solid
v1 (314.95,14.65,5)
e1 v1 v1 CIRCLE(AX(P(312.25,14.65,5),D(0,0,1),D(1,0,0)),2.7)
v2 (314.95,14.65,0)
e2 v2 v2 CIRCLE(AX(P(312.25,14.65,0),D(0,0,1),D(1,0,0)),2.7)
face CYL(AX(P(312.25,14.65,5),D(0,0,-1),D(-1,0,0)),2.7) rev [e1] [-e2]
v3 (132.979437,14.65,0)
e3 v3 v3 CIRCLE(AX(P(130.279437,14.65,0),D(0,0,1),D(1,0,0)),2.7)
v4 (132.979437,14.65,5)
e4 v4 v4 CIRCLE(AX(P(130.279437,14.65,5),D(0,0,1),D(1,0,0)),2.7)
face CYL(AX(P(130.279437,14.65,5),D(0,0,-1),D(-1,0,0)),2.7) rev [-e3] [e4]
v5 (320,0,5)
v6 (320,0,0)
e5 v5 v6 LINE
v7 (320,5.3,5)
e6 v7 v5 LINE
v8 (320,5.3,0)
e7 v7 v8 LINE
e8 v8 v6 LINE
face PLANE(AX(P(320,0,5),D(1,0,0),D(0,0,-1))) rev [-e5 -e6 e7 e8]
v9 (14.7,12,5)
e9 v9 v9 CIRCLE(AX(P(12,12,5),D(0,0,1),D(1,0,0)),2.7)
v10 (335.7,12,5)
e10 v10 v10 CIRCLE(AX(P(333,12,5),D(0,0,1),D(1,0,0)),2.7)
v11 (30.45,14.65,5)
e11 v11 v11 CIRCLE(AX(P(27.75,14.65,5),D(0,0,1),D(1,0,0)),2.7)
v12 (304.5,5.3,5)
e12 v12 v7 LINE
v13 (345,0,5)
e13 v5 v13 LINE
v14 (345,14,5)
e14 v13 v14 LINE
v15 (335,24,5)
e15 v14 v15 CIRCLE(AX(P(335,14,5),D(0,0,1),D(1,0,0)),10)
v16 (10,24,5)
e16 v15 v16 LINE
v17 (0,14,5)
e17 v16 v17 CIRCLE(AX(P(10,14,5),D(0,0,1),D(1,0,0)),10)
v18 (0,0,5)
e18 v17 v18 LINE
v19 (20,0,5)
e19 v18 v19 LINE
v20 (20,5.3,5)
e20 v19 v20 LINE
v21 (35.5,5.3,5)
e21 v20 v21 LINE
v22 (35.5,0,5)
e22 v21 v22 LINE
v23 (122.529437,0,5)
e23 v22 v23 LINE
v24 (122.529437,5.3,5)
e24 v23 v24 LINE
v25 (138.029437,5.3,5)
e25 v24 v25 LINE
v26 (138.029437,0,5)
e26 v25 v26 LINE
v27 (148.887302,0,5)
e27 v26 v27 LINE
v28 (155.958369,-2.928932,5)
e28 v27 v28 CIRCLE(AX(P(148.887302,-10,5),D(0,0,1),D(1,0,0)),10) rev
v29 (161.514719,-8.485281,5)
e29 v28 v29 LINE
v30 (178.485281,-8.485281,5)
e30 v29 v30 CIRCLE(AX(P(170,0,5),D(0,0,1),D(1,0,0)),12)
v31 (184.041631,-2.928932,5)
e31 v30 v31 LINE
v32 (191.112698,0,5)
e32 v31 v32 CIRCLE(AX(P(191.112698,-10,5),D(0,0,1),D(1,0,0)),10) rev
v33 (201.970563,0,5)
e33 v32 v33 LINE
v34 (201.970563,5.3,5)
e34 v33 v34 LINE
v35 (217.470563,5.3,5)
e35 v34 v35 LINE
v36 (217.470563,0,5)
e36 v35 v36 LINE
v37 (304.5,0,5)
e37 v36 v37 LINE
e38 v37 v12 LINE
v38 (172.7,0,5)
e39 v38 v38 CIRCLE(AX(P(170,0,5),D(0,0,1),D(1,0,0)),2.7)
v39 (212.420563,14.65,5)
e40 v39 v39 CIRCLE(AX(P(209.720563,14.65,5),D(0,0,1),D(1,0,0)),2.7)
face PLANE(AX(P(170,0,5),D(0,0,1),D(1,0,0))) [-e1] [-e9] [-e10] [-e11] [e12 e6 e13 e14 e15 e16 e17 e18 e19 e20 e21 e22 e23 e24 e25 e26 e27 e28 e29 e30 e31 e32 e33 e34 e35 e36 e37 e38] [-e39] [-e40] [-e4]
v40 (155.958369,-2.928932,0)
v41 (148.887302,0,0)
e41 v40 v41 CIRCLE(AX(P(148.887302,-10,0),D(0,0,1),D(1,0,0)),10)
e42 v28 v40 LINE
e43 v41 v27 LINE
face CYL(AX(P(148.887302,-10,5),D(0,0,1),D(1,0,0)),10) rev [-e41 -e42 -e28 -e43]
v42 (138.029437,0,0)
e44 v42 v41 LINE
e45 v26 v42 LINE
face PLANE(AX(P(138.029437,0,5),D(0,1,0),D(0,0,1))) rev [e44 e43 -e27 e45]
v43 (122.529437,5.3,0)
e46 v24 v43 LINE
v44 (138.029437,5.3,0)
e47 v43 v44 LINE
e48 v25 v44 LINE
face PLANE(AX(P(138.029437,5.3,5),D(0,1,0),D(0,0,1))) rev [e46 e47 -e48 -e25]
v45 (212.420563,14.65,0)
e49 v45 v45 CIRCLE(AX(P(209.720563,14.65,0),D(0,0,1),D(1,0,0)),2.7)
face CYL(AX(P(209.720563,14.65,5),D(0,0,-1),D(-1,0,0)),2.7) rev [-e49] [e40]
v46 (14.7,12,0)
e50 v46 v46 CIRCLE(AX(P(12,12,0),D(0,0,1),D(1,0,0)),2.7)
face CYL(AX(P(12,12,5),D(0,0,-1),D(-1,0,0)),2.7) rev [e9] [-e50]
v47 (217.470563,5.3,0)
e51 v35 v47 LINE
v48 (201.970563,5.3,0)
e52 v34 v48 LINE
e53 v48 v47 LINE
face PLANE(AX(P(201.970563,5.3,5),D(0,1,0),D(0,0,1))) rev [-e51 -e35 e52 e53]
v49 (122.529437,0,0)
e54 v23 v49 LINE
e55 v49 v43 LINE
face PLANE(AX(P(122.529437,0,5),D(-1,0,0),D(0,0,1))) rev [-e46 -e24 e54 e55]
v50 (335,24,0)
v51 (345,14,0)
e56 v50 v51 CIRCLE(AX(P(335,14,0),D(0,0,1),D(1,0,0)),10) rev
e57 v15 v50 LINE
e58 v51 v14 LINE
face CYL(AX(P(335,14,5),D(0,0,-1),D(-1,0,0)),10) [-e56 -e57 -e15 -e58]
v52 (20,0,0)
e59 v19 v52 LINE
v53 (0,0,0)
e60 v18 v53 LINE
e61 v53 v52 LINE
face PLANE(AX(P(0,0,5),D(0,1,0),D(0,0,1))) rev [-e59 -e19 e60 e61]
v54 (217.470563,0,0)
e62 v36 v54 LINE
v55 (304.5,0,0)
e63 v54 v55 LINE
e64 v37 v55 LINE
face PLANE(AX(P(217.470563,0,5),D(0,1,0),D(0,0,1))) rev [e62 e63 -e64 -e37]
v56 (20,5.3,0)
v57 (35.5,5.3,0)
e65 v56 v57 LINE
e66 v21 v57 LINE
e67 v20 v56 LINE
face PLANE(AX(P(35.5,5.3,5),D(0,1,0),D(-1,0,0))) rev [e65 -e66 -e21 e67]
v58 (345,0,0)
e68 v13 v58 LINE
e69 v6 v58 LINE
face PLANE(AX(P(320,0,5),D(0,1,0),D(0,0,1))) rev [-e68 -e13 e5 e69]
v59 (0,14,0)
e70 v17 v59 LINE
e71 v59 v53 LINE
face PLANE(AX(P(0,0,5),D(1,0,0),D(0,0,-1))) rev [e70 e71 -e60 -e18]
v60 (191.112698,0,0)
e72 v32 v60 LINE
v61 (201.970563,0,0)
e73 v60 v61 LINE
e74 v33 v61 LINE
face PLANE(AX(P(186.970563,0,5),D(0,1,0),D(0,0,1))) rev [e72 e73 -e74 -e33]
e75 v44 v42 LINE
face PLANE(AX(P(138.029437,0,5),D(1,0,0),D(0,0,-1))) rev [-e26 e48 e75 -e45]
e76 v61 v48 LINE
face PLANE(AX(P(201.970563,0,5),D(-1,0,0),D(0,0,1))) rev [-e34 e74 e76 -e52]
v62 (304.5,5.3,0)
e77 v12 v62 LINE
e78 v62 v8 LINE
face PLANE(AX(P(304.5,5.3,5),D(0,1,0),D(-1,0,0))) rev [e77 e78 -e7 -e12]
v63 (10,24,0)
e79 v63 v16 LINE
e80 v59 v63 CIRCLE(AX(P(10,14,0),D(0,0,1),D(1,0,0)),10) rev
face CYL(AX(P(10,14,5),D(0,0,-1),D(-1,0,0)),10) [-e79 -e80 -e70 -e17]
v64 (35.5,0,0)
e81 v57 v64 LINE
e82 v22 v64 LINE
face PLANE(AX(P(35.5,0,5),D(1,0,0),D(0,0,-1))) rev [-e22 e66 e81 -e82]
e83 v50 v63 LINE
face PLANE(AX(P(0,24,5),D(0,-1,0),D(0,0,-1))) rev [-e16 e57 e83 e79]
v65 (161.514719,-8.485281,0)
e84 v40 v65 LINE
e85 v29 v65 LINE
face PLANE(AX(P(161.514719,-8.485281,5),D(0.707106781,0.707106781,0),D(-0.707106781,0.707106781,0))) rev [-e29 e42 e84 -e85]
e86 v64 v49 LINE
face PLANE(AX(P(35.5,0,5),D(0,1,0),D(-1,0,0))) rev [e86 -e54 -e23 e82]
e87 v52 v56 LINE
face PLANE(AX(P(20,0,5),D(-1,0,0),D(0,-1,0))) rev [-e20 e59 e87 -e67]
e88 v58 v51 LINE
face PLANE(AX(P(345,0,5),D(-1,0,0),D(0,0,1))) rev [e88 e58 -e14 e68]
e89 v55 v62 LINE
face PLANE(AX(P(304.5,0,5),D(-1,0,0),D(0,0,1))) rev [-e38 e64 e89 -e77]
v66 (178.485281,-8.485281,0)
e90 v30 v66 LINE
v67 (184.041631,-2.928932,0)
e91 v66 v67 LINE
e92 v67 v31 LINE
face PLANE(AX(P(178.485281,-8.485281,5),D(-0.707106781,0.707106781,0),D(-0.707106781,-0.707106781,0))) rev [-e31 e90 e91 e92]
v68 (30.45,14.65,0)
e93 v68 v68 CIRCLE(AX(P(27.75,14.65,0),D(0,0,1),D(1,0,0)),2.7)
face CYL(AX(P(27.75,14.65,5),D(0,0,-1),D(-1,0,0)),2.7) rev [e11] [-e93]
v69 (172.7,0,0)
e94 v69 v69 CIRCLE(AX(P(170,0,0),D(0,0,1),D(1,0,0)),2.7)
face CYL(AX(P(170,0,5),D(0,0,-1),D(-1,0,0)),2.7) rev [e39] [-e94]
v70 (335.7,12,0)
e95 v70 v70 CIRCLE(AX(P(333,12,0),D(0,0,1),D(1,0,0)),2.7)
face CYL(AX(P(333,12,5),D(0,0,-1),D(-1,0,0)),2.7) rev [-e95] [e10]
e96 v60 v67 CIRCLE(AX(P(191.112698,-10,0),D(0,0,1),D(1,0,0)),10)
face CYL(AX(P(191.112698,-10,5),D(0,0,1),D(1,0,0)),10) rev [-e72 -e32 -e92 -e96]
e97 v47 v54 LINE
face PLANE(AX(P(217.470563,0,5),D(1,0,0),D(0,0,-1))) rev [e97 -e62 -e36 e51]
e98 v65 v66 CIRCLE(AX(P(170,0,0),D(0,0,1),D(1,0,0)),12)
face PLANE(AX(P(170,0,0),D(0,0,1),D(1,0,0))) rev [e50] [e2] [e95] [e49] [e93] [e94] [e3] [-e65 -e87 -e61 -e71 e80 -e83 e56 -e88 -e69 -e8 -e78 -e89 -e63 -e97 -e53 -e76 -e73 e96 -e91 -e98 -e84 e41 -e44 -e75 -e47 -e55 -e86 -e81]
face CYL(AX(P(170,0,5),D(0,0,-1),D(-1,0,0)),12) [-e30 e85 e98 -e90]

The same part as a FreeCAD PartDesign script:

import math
import FreeCAD as App
import Part
import Sketcher
from FreeCAD import Vector


def edges_at(feature, points):
    """Names of the edges that pass closest to the given points."""
    edges = feature.Shape.Edges
    near = lambda p: min(range(len(edges)), key=lambda i: edges[i].distToShape(Part.Vertex(*p))[0])
    return sorted({f"Edge{near(p) + 1}" for p in points})

doc = App.newDocument("Part")
body = doc.addObject("PartDesign::Body", "Body")

# Sketch on XY plane
sketch1 = body.newObject("Sketcher::SketchObject", "Sketch")
sketch1.AttachmentSupport = (doc.getObject("XY_Plane"), [""])
sketch1.MapMode = "FlatFace"
sketch1.addGeometry([
    Part.LineSegment(Vector(0, 0, 0), Vector(20, 0, 0)),  # 0
    Part.LineSegment(Vector(20, 0, 0), Vector(20, 5.3, 0)),  # 1
    Part.LineSegment(Vector(20, 5.3, 0), Vector(35.5, 5.3, 0)),  # 2
    Part.LineSegment(Vector(35.5, 5.3, 0), Vector(35.5, 0, 0)),  # 3
    Part.LineSegment(Vector(35.5, 0, 0), Vector(122.529437, 0, 0)),  # 4
    Part.LineSegment(Vector(122.529437, 0, 0), Vector(122.529437, 5.3, 0)),  # 5
    Part.LineSegment(Vector(122.529437, 5.3, 0), Vector(138.029437, 5.3, 0)),  # 6
    Part.LineSegment(Vector(138.029437, 5.3, 0), Vector(138.029437, 0, 0)),  # 7
    Part.LineSegment(Vector(138.029437, 0, 0), Vector(153.029437, 0, 0)),  # 8
    Part.LineSegment(Vector(153.029437, 0, 0), Vector(161.514719, -8.485281, 0)),  # 9
    Part.ArcOfCircle(Part.Circle(Vector(170, 0, 0), Vector(0, 0, 1), 12), math.radians(-135), math.radians(-45)),  # 10
    Part.LineSegment(Vector(178.485281, -8.485281, 0), Vector(186.970563, 0, 0)),  # 11
    Part.LineSegment(Vector(186.970563, 0, 0), Vector(201.970563, 0, 0)),  # 12
    Part.LineSegment(Vector(201.970563, 0, 0), Vector(201.970563, 5.3, 0)),  # 13
    Part.LineSegment(Vector(201.970563, 5.3, 0), Vector(217.470563, 5.3, 0)),  # 14
    Part.LineSegment(Vector(217.470563, 5.3, 0), Vector(217.470563, 0, 0)),  # 15
    Part.LineSegment(Vector(217.470563, 0, 0), Vector(304.5, 0, 0)),  # 16
    Part.LineSegment(Vector(304.5, 0, 0), Vector(304.5, 5.3, 0)),  # 17
    Part.LineSegment(Vector(304.5, 5.3, 0), Vector(320, 5.3, 0)),  # 18
    Part.LineSegment(Vector(320, 5.3, 0), Vector(320, 0, 0)),  # 19
    Part.LineSegment(Vector(320, 0, 0), Vector(345, 0, 0)),  # 20
    Part.LineSegment(Vector(345, 0, 0), Vector(345, 24, 0)),  # 21
    Part.LineSegment(Vector(345, 24, 0), Vector(0, 24, 0)),  # 22
    Part.LineSegment(Vector(0, 24, 0), Vector(0, 0, 0)),  # 23
    Part.Circle(Vector(170, 0, 0), Vector(0, 0, 1), 2.7),  # 24
    Part.Circle(Vector(12, 12, 0), Vector(0, 0, 1), 2.7),  # 25
    Part.Circle(Vector(27.75, 14.65, 0), Vector(0, 0, 1), 2.7),  # 26
    Part.Circle(Vector(130.279437, 14.65, 0), Vector(0, 0, 1), 2.7),  # 27
    Part.Circle(Vector(333, 12, 0), Vector(0, 0, 1), 2.7),  # 28
    Part.Circle(Vector(209.720563, 14.65, 0), Vector(0, 0, 1), 2.7),  # 29
    Part.Circle(Vector(312.25, 14.65, 0), Vector(0, 0, 1), 2.7),  # 30
], False)
sketch1.addConstraint([
    Sketcher.Constraint("Coincident", 0, 2, 1, 1),
    Sketcher.Constraint("Coincident", 1, 2, 2, 1),
    Sketcher.Constraint("Coincident", 2, 2, 3, 1),
    Sketcher.Constraint("Coincident", 3, 2, 4, 1),
    Sketcher.Constraint("Coincident", 4, 2, 5, 1),
    Sketcher.Constraint("Coincident", 5, 2, 6, 1),
    Sketcher.Constraint("Coincident", 6, 2, 7, 1),
    Sketcher.Constraint("Coincident", 7, 2, 8, 1),
    Sketcher.Constraint("Coincident", 8, 2, 9, 1),
    Sketcher.Constraint("Tangent", 9, 2, 10, 1),
    Sketcher.Constraint("Tangent", 10, 2, 11, 1),
    Sketcher.Constraint("Coincident", 11, 2, 12, 1),
    Sketcher.Constraint("Coincident", 12, 2, 13, 1),
    Sketcher.Constraint("Coincident", 13, 2, 14, 1),
    Sketcher.Constraint("Coincident", 14, 2, 15, 1),
    Sketcher.Constraint("Coincident", 15, 2, 16, 1),
    Sketcher.Constraint("Coincident", 16, 2, 17, 1),
    Sketcher.Constraint("Coincident", 17, 2, 18, 1),
    Sketcher.Constraint("Coincident", 18, 2, 19, 1),
    Sketcher.Constraint("Coincident", 19, 2, 20, 1),
    Sketcher.Constraint("Coincident", 20, 2, 21, 1),
    Sketcher.Constraint("Coincident", 21, 2, 22, 1),
    Sketcher.Constraint("Coincident", 22, 2, 23, 1),
    Sketcher.Constraint("Coincident", 23, 2, 0, 1),
    Sketcher.Constraint("Horizontal", 0),
    Sketcher.Constraint("Vertical", 1),
    Sketcher.Constraint("Horizontal", 2),
    Sketcher.Constraint("Vertical", 3),
    Sketcher.Constraint("Horizontal", 4),
    Sketcher.Constraint("Vertical", 5),
    Sketcher.Constraint("Horizontal", 6),
    Sketcher.Constraint("Vertical", 7),
    Sketcher.Constraint("Horizontal", 8),
    Sketcher.Constraint("Horizontal", 12),
    Sketcher.Constraint("Vertical", 13),
    Sketcher.Constraint("Horizontal", 14),
    Sketcher.Constraint("Vertical", 15),
    Sketcher.Constraint("Horizontal", 16),
    Sketcher.Constraint("Vertical", 17),
    Sketcher.Constraint("Horizontal", 18),
    Sketcher.Constraint("Vertical", 19),
    Sketcher.Constraint("Horizontal", 20),
    Sketcher.Constraint("Vertical", 21),
    Sketcher.Constraint("Horizontal", 22),
    Sketcher.Constraint("Vertical", 23),
    Sketcher.Constraint("Coincident", 23, 2, -1, 1),
    Sketcher.Constraint("Coincident", 24, 3, 10, 3),
    Sketcher.Constraint("Equal", 24, 25),
    Sketcher.Constraint("Equal", 25, 26),
    Sketcher.Constraint("Equal", 26, 27),
    Sketcher.Constraint("Equal", 27, 28),
    Sketcher.Constraint("Equal", 28, 29),
    Sketcher.Constraint("Equal", 29, 30),
    Sketcher.Constraint("PointOnObject", 10, 3, -1),
    Sketcher.Constraint("PointOnObject", 3, 2, -1),
    Sketcher.Constraint("PointOnObject", 7, 2, -1),
    Sketcher.Constraint("PointOnObject", 11, 2, -1),
    Sketcher.Constraint("PointOnObject", 15, 2, -1),
    Sketcher.Constraint("PointOnObject", 19, 2, -1),
    Sketcher.Constraint("Perpendicular", 9, 11),
    Sketcher.Constraint("Horizontal", 26, 3, 27, 3),
    Sketcher.Constraint("Horizontal", 25, 3, 28, 3),
    Sketcher.Constraint("Horizontal", 27, 3, 29, 3),
    Sketcher.Constraint("Horizontal", 29, 3, 30, 3),
    Sketcher.Constraint("Horizontal", 2, 2, 5, 2),
    Sketcher.Constraint("Horizontal", 9, 2, 10, 2),
    Sketcher.Constraint("Horizontal", 6, 2, 13, 2),
    Sketcher.Constraint("Horizontal", 14, 2, 17, 2),
    Sketcher.Constraint("Equal", 2, 6),
    Sketcher.Constraint("Equal", 8, 12),
    Sketcher.Constraint("Equal", 6, 14),
    Sketcher.Constraint("Equal", 4, 16),
    Sketcher.Constraint("Equal", 14, 18),
    Sketcher.Constraint("Radius", 10, 12.0),
    Sketcher.Constraint("Diameter", 24, 5.4),
    Sketcher.Constraint("DistanceX", 0, 1, 0, 2, 20.0),
    Sketcher.Constraint("DistanceX", 8, 1, 8, 2, 15.0),
    Sketcher.Constraint("DistanceX", 20, 1, 20, 2, 25.0),
    Sketcher.Constraint("DistanceX", 22, 2, 22, 1, 345.0),
    Sketcher.Constraint("DistanceY", 21, 1, 21, 2, 24.0),
    Sketcher.Constraint("DistanceX", 2, 1, 2, 2, 15.5),
    Sketcher.Constraint("DistanceY", 1, 1, 1, 2, 5.3),
    Sketcher.Constraint("DistanceX", -1, 1, 25, 3, 12.0),
    Sketcher.Constraint("DistanceY", -1, 1, 25, 3, 12.0),
    Sketcher.Constraint("DistanceX", -1, 1, 28, 3, 333.0),
    Sketcher.Constraint("DistanceX", -1, 1, 26, 3, 27.75),
    Sketcher.Constraint("DistanceY", -1, 1, 26, 3, 14.65),
    Sketcher.Constraint("DistanceX", -1, 1, 30, 3, 312.25),
    Sketcher.Constraint("DistanceX", 4, 2, 27, 3, 7.75),
    Sketcher.Constraint("DistanceX", 11, 2, 29, 3, 22.75),
])
pad1 = body.newObject("PartDesign::Pad", "Pad")
pad1.Profile = sketch1
pad1.Length = 5
doc.recompute()

fillet = body.newObject("PartDesign::Fillet", "Fillet")
fillet.Base = (pad1, edges_at(pad1, [
    (0, 24, 2.5),
    (345, 24, 2.5),
    (186.971, 0, 2.5),
    (153.029, 0, 2.5),
]))
fillet.Radius = 10

doc.recompute()
